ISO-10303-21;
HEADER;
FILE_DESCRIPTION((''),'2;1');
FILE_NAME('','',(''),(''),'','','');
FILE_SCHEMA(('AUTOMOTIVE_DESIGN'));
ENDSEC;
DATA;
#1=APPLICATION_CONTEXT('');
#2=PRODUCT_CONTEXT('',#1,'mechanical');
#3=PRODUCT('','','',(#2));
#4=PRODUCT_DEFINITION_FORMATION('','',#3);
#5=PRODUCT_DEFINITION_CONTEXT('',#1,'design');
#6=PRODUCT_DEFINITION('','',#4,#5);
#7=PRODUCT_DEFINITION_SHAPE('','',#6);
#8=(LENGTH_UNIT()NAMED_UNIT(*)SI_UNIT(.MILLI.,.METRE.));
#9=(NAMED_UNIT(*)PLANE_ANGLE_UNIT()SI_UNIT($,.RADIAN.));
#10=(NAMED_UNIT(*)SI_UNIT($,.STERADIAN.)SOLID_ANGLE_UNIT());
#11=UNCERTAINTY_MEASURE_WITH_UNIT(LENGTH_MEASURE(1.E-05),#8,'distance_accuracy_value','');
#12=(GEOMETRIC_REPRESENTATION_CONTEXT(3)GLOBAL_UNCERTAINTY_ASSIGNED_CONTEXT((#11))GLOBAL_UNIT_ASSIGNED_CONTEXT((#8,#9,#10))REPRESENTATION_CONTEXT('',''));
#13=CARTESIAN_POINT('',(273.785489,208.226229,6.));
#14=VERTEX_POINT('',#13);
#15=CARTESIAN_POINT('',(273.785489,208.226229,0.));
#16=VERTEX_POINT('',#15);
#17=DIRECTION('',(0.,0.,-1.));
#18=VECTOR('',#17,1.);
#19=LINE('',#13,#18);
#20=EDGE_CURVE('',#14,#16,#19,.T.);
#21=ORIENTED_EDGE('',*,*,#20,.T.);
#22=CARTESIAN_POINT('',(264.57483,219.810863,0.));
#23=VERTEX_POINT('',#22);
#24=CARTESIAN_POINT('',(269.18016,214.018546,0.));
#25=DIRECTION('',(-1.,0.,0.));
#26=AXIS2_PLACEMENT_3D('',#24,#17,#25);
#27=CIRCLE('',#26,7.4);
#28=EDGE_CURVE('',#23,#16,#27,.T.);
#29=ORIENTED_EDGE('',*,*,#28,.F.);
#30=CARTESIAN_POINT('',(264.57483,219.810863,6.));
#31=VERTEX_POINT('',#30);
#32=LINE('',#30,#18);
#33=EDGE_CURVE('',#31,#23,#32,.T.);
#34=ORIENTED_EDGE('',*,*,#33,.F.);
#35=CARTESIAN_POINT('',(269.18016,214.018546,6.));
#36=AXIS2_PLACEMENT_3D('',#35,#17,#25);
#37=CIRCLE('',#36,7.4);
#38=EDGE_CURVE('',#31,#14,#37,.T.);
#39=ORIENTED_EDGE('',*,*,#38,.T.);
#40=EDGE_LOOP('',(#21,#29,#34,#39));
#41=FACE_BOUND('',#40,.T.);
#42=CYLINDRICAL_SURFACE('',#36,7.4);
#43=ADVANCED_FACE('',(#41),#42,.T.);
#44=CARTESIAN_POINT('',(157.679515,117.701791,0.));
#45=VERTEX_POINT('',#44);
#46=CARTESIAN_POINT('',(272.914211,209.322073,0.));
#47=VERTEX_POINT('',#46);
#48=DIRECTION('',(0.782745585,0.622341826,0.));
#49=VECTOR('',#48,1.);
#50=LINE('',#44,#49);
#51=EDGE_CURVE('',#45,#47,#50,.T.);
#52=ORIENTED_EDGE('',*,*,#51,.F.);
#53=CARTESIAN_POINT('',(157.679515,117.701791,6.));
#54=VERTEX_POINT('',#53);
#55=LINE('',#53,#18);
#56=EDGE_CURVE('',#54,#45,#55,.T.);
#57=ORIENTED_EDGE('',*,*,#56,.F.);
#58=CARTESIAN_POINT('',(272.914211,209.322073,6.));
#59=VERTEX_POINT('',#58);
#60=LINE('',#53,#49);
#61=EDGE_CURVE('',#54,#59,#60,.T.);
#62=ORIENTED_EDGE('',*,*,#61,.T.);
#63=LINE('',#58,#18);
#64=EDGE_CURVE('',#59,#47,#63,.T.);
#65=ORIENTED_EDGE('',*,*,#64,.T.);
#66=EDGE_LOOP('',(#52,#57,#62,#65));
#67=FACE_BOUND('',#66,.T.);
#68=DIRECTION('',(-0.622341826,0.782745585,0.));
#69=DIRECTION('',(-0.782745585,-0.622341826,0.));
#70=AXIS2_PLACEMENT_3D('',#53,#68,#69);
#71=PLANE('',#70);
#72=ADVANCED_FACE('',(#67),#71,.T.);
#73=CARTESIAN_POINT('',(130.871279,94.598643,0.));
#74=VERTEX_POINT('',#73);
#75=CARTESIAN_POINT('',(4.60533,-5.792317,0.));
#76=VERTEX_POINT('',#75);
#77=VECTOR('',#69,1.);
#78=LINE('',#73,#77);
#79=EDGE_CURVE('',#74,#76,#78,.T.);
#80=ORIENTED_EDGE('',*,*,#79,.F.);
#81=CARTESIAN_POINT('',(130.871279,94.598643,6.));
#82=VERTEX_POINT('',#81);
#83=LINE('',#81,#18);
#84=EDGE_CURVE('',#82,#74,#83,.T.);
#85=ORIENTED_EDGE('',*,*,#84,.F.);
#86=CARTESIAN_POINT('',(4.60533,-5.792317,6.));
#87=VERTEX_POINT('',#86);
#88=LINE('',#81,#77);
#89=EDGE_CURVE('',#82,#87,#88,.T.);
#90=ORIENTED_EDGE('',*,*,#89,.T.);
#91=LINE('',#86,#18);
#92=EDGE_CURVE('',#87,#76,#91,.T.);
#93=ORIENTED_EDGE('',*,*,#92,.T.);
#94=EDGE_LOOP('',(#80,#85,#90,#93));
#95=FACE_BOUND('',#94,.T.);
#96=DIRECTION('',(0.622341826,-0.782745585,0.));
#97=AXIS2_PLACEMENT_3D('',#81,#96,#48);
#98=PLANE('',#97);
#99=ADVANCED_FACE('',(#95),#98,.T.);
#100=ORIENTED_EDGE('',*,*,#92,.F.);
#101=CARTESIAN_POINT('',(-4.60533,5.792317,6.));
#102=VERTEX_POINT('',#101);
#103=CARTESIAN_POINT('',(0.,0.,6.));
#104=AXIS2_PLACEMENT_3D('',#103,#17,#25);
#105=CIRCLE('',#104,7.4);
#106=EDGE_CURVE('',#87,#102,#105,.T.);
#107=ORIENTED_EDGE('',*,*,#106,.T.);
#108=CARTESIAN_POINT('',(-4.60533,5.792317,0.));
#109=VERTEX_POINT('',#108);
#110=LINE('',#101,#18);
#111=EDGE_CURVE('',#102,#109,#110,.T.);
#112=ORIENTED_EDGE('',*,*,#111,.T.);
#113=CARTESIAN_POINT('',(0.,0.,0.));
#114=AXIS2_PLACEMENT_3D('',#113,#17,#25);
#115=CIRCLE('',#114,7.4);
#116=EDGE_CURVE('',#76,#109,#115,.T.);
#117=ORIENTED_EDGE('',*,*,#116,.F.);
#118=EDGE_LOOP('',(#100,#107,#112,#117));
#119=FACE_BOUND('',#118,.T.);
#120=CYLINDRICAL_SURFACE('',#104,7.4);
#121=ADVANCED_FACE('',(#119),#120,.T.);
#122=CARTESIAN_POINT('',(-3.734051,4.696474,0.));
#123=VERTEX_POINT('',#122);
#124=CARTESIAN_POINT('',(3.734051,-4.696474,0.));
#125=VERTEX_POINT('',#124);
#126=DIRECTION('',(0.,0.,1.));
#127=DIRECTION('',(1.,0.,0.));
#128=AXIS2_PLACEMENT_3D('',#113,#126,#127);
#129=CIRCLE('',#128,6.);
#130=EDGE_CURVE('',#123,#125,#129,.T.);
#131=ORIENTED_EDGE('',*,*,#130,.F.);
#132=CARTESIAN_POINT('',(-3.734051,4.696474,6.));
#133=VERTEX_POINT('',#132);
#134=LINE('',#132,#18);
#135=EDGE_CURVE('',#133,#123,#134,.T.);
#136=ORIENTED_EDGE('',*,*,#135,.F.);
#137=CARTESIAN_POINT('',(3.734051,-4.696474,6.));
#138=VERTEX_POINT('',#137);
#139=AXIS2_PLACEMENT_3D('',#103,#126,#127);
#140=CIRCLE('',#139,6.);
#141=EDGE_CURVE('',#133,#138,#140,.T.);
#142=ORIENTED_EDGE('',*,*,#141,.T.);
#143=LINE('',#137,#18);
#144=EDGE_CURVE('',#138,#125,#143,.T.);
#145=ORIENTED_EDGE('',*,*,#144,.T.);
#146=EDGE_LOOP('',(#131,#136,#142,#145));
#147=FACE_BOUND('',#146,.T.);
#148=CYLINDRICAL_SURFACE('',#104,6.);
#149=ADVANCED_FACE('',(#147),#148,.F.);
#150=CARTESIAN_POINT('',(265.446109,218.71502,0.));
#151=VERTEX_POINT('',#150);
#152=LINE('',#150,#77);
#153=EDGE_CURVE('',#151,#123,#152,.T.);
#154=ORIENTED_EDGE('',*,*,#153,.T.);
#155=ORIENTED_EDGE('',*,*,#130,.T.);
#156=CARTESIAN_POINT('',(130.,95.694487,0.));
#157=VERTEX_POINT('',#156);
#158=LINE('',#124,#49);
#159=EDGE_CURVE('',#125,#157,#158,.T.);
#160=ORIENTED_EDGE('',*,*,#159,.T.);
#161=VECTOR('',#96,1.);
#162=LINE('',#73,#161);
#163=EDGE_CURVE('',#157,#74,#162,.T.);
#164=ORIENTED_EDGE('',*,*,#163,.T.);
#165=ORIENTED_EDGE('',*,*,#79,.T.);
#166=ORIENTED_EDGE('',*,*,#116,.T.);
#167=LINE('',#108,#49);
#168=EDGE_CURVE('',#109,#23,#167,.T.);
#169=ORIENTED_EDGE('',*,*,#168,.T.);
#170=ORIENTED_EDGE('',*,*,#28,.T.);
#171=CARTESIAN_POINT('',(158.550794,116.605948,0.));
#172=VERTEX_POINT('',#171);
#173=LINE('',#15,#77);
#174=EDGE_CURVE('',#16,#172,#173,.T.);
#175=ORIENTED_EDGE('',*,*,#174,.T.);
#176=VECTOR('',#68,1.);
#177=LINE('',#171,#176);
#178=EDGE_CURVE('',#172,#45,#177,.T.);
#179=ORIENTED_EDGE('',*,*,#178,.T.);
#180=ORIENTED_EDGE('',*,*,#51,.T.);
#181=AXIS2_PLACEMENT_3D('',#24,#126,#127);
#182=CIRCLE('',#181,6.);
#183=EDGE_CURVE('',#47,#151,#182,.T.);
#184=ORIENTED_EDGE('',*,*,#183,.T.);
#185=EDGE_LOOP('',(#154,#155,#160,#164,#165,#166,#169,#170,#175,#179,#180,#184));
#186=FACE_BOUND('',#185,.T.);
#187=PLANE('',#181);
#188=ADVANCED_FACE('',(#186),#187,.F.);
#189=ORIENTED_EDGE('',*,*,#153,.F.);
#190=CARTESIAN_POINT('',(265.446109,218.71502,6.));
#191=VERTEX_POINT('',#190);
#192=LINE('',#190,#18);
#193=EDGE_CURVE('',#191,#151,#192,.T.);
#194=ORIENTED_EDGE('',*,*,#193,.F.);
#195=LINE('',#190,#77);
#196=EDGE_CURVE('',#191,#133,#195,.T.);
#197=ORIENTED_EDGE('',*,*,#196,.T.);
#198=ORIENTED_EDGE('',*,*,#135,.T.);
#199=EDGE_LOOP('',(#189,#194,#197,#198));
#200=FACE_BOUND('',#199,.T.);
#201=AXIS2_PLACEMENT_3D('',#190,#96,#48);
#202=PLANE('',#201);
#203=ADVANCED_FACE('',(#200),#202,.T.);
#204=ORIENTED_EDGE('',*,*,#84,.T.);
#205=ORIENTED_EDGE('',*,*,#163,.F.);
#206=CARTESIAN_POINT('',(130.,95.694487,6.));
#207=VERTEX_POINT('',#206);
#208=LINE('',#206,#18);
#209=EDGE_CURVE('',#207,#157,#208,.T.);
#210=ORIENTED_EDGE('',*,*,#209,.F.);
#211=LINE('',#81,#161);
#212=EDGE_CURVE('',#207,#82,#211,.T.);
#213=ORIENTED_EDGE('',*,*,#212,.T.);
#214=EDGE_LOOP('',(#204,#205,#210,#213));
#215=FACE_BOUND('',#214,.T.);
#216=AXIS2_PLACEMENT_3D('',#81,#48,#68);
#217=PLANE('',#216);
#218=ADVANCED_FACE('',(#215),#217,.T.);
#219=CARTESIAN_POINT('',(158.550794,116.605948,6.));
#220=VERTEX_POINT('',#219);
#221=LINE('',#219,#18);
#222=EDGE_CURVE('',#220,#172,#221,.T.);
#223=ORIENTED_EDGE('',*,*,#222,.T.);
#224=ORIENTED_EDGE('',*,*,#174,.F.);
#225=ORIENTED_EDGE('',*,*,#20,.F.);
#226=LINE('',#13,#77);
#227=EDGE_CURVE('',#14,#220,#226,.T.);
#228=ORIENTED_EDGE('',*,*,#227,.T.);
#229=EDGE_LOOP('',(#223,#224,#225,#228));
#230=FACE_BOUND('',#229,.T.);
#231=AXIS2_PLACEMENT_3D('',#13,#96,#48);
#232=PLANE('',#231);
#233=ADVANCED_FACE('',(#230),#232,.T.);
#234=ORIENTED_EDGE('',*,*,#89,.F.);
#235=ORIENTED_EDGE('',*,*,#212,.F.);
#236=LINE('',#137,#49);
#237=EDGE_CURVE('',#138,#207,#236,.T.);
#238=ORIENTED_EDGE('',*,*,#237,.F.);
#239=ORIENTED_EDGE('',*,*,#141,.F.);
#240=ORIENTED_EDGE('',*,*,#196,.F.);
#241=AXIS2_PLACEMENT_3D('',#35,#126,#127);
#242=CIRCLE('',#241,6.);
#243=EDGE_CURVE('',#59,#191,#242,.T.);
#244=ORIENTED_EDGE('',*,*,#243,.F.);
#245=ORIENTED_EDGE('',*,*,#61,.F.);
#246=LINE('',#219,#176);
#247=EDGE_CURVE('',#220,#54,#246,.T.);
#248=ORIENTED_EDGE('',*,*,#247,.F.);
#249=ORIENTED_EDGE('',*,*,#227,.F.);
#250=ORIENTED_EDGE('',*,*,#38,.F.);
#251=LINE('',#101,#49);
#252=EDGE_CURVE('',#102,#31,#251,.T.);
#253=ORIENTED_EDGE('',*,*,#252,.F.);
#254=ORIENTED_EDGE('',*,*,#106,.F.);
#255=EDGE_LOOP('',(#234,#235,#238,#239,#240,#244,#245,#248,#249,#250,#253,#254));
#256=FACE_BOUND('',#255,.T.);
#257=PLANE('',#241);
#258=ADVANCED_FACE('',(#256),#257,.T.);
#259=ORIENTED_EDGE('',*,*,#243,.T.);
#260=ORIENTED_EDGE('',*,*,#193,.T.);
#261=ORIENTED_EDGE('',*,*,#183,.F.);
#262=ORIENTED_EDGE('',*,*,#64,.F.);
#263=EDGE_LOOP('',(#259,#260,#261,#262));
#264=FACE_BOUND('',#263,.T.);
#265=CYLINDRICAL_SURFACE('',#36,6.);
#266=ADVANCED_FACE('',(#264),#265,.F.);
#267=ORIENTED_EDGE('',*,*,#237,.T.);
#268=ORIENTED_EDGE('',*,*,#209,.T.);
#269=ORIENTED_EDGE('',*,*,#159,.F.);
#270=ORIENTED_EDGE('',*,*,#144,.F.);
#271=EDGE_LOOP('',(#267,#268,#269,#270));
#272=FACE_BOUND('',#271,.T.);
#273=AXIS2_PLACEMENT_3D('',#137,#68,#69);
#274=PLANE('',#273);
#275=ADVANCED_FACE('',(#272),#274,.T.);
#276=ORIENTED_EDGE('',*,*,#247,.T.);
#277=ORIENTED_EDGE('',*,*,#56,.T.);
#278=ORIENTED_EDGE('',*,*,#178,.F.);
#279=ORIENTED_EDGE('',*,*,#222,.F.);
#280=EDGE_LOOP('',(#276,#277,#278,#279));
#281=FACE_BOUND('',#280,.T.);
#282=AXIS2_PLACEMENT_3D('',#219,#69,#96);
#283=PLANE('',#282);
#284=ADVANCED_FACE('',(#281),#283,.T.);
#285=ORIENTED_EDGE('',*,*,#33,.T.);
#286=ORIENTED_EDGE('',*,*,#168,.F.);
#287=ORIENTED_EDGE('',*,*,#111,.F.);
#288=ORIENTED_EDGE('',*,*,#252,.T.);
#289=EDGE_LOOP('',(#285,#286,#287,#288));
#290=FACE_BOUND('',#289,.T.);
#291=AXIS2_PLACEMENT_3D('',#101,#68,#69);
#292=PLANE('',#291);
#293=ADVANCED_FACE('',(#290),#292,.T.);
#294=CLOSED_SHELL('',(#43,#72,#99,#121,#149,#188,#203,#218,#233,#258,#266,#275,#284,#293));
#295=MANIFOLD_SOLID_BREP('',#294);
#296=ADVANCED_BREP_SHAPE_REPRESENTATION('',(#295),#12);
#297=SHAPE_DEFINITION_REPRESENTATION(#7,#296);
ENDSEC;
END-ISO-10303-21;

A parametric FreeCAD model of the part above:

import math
import FreeCAD as App
import Part
import Sketcher

doc = App.newDocument("Part")
body = doc.addObject("PartDesign::Body", "Body")

# Sketch on XY plane
sketch1 = body.newObject("Sketcher::SketchObject", "Sketch")
sketch1.AttachmentSupport = (doc.getObject("XY_Plane"), [""])
sketch1.MapMode = "FlatFace"
sketch1.addGeometry([
    Part.LineSegment(App.Vector(265.4, 218.7, 0), App.Vector(-3.7, 4.7, 0)),  # 0
    Part.ArcOfCircle(Part.Circle(App.Vector(0, 0, 0), App.Vector(0, 0, 1), 6), math.radians(128), math.radians(308)),  # 1
    Part.LineSegment(App.Vector(3.7, -4.7, 0), App.Vector(130, 95.7, 0)),  # 2
    Part.LineSegment(App.Vector(130, 95.7, 0), App.Vector(130.9, 94.6, 0)),  # 3
    Part.LineSegment(App.Vector(130.9, 94.6, 0), App.Vector(4.6, -5.8, 0)),  # 4
    Part.ArcOfCircle(Part.Circle(App.Vector(0, 0, 0), App.Vector(0, 0, 1), 7.4), math.radians(128), math.radians(308)),  # 5
    Part.LineSegment(App.Vector(-4.6, 5.8, 0), App.Vector(264.6, 219.8, 0)),  # 6
    Part.ArcOfCircle(Part.Circle(App.Vector(269.2, 214, 0), App.Vector(0, 0, 1), 7.4), math.radians(-52), math.radians(128)),  # 7
    Part.LineSegment(App.Vector(273.8, 208.2, 0), App.Vector(158.6, 116.6, 0)),  # 8
    Part.LineSegment(App.Vector(158.6, 116.6, 0), App.Vector(157.7, 117.7, 0)),  # 9
    Part.LineSegment(App.Vector(157.7, 117.7, 0), App.Vector(272.9, 209.3, 0)),  # 10
    Part.ArcOfCircle(Part.Circle(App.Vector(269.2, 214, 0), App.Vector(0, 0, 1), 6), math.radians(-52), math.radians(128)),  # 11
], False)
sketch1.addConstraint([
    Sketcher.Constraint("Tangent", 0, 2, 1, 1),
    Sketcher.Constraint("Tangent", 1, 2, 2, 1),
    Sketcher.Constraint("Coincident", 2, 2, 3, 1),
    Sketcher.Constraint("Coincident", 3, 2, 4, 1),
    Sketcher.Constraint("Tangent", 4, 2, 5, 2),
    Sketcher.Constraint("Tangent", 5, 1, 6, 1),
    Sketcher.Constraint("Tangent", 6, 2, 7, 2),
    Sketcher.Constraint("Tangent", 7, 1, 8, 1),
    Sketcher.Constraint("Coincident", 8, 2, 9, 1),
    Sketcher.Constraint("Coincident", 9, 2, 10, 1),
    Sketcher.Constraint("Tangent", 10, 2, 11, 1),
    Sketcher.Constraint("Tangent", 11, 2, 0, 1),
    Sketcher.Constraint("Coincident", 1, 3, -1, 1),
    Sketcher.Constraint("Coincident", 5, 3, -1, 1),
    Sketcher.Constraint("Coincident", 11, 3, 7, 3),
    Sketcher.Constraint("Equal", 5, 7),
    Sketcher.Constraint("Equal", 1, 11),
    Sketcher.Constraint("Parallel", 0, 2),
    Sketcher.Constraint("Perpendicular", 2, 3),
    Sketcher.Constraint("Perpendicular", 3, 4),
    Sketcher.Constraint("Parallel", 6, 8),
    Sketcher.Constraint("Perpendicular", 8, 9),
    Sketcher.Constraint("Perpendicular", 9, 10),
    Sketcher.Constraint("Radius", 1, 6.0),
    Sketcher.Constraint("Radius", 5, 7.4),
    Sketcher.Constraint("DistanceX", -1, 1, 2, 2, 130.0),
    Sketcher.Constraint("DistanceY", 8, 2, 7, 3, 97.412599),
    Sketcher.Constraint("Distance", 2, 161.311608),
    Sketcher.Constraint("DistanceX", -1, 1, 7, 3, 269.18016),
])
pad1 = body.newObject("PartDesign::Pad", "Pad")
pad1.Profile = sketch1
pad1.Length = 6

doc.recompute()
